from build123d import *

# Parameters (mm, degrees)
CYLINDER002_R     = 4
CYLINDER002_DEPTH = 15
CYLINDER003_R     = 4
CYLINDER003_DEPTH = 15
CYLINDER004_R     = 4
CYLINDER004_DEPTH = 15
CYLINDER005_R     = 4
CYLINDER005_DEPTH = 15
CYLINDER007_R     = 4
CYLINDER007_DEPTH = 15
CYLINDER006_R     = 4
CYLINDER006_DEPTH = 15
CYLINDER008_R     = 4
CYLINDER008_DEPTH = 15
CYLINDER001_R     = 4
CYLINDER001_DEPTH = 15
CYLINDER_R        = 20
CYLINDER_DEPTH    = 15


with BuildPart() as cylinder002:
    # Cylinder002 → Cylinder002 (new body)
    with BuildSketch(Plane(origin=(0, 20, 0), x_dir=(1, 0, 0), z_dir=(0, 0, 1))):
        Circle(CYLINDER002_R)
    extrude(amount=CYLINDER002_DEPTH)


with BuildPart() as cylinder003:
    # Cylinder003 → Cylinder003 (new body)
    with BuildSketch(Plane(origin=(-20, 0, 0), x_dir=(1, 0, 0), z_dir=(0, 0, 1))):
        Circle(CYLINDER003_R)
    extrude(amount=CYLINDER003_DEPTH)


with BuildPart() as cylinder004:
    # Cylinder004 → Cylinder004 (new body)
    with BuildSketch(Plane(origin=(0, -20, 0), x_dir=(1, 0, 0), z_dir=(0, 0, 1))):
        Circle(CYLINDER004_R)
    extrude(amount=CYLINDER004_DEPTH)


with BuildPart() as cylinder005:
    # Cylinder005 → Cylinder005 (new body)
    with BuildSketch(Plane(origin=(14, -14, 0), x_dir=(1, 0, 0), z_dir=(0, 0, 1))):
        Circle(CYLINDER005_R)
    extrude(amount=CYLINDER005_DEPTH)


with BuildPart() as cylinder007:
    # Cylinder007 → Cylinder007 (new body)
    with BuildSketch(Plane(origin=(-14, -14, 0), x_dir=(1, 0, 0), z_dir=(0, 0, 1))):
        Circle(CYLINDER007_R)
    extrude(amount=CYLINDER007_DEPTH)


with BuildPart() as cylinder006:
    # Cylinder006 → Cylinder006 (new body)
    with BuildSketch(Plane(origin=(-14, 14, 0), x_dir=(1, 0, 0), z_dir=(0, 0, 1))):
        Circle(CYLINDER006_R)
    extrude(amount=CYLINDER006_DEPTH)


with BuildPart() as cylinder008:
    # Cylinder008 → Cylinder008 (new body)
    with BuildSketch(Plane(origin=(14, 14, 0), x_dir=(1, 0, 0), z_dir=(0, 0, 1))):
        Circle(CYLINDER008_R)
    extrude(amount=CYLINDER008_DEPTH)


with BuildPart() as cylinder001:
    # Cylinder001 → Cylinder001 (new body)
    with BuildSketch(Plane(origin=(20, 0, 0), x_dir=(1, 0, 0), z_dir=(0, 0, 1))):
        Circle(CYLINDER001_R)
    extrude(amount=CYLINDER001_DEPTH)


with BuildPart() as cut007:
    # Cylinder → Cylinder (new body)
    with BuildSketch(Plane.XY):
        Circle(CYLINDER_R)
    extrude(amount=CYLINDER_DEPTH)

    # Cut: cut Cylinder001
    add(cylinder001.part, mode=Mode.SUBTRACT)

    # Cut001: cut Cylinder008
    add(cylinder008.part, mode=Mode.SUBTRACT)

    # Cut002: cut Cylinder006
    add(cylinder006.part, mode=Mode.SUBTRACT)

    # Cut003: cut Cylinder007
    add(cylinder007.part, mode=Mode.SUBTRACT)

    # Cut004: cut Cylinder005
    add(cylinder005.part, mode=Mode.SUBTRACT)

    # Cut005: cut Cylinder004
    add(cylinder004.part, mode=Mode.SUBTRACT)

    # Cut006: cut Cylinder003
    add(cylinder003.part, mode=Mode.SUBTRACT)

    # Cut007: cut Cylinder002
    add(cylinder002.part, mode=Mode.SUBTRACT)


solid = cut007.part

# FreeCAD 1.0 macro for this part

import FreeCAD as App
import Part
import Sketcher

doc = App.newDocument("Part")
body = doc.addObject("PartDesign::Body", "Body")

sketch1 = doc.addObject("Sketcher::SketchObject", "Sketch")
body.addObject(sketch1)
sketch1.AttachmentSupport = (doc.XY_Plane, [""])
sketch1.MapMode = "FlatFace"
sketch1.addGeometry(Part.Circle(App.Vector(0, 20, 0), App.Vector(0, 0, 1), 4), False)
sketch1.addConstraint([
    Sketcher.Constraint("PointOnObject", 0, 3, -2),
    Sketcher.Constraint("Diameter", 0, 8.0),
    Sketcher.Constraint("DistanceY", -1, 1, 0, 3, 20.0),
])
pad1 = doc.addObject("PartDesign::Pad", "Pad")
body.addObject(pad1)
pad1.Profile = sketch1
pad1.Length = 15
body2 = doc.addObject("PartDesign::Body", "Body001")

sketch2 = doc.addObject("Sketcher::SketchObject", "Sketch001")
body2.addObject(sketch2)
sketch2.AttachmentSupport = (doc.getObject("XY_Plane001"), [""])
sketch2.MapMode = "FlatFace"
sketch2.addGeometry(Part.Circle(App.Vector(-20, 0, 0), App.Vector(0, 0, 1), 4), False)
sketch2.addConstraint([
    Sketcher.Constraint("PointOnObject", 0, 3, -1),
    Sketcher.Constraint("Diameter", 0, 8.0),
    Sketcher.Constraint("DistanceX", 0, 3, -1, 1, 20.0),
])
pad2 = doc.addObject("PartDesign::Pad", "Pad001")
body2.addObject(pad2)
pad2.Profile = sketch2
pad2.Length = 15
body3 = doc.addObject("PartDesign::Body", "Body002")

sketch3 = doc.addObject("Sketcher::SketchObject", "Sketch002")
body3.addObject(sketch3)
sketch3.AttachmentSupport = (doc.getObject("XY_Plane002"), [""])
sketch3.MapMode = "FlatFace"
sketch3.addGeometry(Part.Circle(App.Vector(0, -20, 0), App.Vector(0, 0, 1), 4), False)
sketch3.addConstraint([
    Sketcher.Constraint("PointOnObject", 0, 3, -2),
    Sketcher.Constraint("Diameter", 0, 8.0),
    Sketcher.Constraint("DistanceY", 0, 3, -1, 1, 20.0),
])
pad3 = doc.addObject("PartDesign::Pad", "Pad002")
body3.addObject(pad3)
pad3.Profile = sketch3
pad3.Length = 15
body4 = doc.addObject("PartDesign::Body", "Body003")

sketch4 = doc.addObject("Sketcher::SketchObject", "Sketch003")
body4.addObject(sketch4)
sketch4.AttachmentSupport = (doc.getObject("XY_Plane003"), [""])
sketch4.MapMode = "FlatFace"
sketch4.addGeometry(Part.Circle(App.Vector(14, -14, 0), App.Vector(0, 0, 1), 4), False)
sketch4.addConstraint([
    Sketcher.Constraint("Diameter", 0, 8.0),
    Sketcher.Constraint("DistanceX", -1, 1, 0, 3, 14.0),
    Sketcher.Constraint("DistanceY", 0, 3, -1, 1, 14.0),
])
pad4 = doc.addObject("PartDesign::Pad", "Pad003")
body4.addObject(pad4)
pad4.Profile = sketch4
pad4.Length = 15
body5 = doc.addObject("PartDesign::Body", "Body004")

sketch5 = doc.addObject("Sketcher::SketchObject", "Sketch004")
body5.addObject(sketch5)
sketch5.AttachmentSupport = (doc.getObject("XY_Plane004"), [""])
sketch5.MapMode = "FlatFace"
sketch5.addGeometry(Part.Circle(App.Vector(-14, -14, 0), App.Vector(0, 0, 1), 4), False)
sketch5.addConstraint([
    Sketcher.Constraint("Diameter", 0, 8.0),
    Sketcher.Constraint("DistanceX", 0, 3, -1, 1, 14.0),
    Sketcher.Constraint("DistanceY", 0, 3, -1, 1, 14.0),
])
pad5 = doc.addObject("PartDesign::Pad", "Pad004")
body5.addObject(pad5)
pad5.Profile = sketch5
pad5.Length = 15
body6 = doc.addObject("PartDesign::Body", "Body005")

sketch6 = doc.addObject("Sketcher::SketchObject", "Sketch005")
body6.addObject(sketch6)
sketch6.AttachmentSupport = (doc.getObject("XY_Plane005"), [""])
sketch6.MapMode = "FlatFace"
sketch6.addGeometry(Part.Circle(App.Vector(-14, 14, 0), App.Vector(0, 0, 1), 4), False)
sketch6.addConstraint([
    Sketcher.Constraint("Diameter", 0, 8.0),
    Sketcher.Constraint("DistanceX", 0, 3, -1, 1, 14.0),
    Sketcher.Constraint("DistanceY", -1, 1, 0, 3, 14.0),
])
pad6 = doc.addObject("PartDesign::Pad", "Pad005")
body6.addObject(pad6)
pad6.Profile = sketch6
pad6.Length = 15
body7 = doc.addObject("PartDesign::Body", "Body006")

sketch7 = doc.addObject("Sketcher::SketchObject", "Sketch006")
body7.addObject(sketch7)
sketch7.AttachmentSupport = (doc.getObject("XY_Plane006"), [""])
sketch7.MapMode = "FlatFace"
sketch7.addGeometry(Part.Circle(App.Vector(14, 14, 0), App.Vector(0, 0, 1), 4), False)
sketch7.addConstraint([
    Sketcher.Constraint("Diameter", 0, 8.0),
    Sketcher.Constraint("DistanceX", -1, 1, 0, 3, 14.0),
    Sketcher.Constraint("DistanceY", -1, 1, 0, 3, 14.0),
])
pad7 = doc.addObject("PartDesign::Pad", "Pad006")
body7.addObject(pad7)
pad7.Profile = sketch7
pad7.Length = 15
body8 = doc.addObject("PartDesign::Body", "Body007")

sketch8 = doc.addObject("Sketcher::SketchObject", "Sketch007")
body8.addObject(sketch8)
sketch8.AttachmentSupport = (doc.getObject("XY_Plane007"), [""])
sketch8.MapMode = "FlatFace"
sketch8.addGeometry(Part.Circle(App.Vector(20, 0, 0), App.Vector(0, 0, 1), 4), False)
sketch8.addConstraint([
    Sketcher.Constraint("PointOnObject", 0, 3, -1),
    Sketcher.Constraint("Diameter", 0, 8.0),
    Sketcher.Constraint("DistanceX", -1, 1, 0, 3, 20.0),
])
pad8 = doc.addObject("PartDesign::Pad", "Pad007")
body8.addObject(pad8)
pad8.Profile = sketch8
pad8.Length = 15
body9 = doc.addObject("PartDesign::Body", "Body008")

sketch9 = doc.addObject("Sketcher::SketchObject", "Sketch008")
body9.addObject(sketch9)
sketch9.AttachmentSupport = (doc.getObject("XY_Plane008"), [""])
sketch9.MapMode = "FlatFace"
sketch9.addGeometry(Part.Circle(App.Vector(0, 0, 0), App.Vector(0, 0, 1), 20), False)
sketch9.addConstraint([
    Sketcher.Constraint("Coincident", 0, 3, -1, 1),
    Sketcher.Constraint("Diameter", 0, 40.0),
])
pad9 = doc.addObject("PartDesign::Pad", "Pad008")
body9.addObject(pad9)
pad9.Profile = sketch9
pad9.Length = 15
doc.recompute()

boolean = doc.addObject("PartDesign::Boolean", "Boolean")
body9.addObject(boolean)
boolean.Type = "Cut"
boolean.addObjects([body8])
doc.recompute()

boolean2 = doc.addObject("PartDesign::Boolean", "Boolean001")
body9.addObject(boolean2)
boolean2.Type = "Cut"
boolean2.addObjects([body7])
doc.recompute()

boolean3 = doc.addObject("PartDesign::Boolean", "Boolean002")
body9.addObject(boolean3)
boolean3.Type = "Cut"
boolean3.addObjects([body6])
doc.recompute()

boolean4 = doc.addObject("PartDesign::Boolean", "Boolean003")
body9.addObject(boolean4)
boolean4.Type = "Cut"
boolean4.addObjects([body5])
doc.recompute()

boolean5 = doc.addObject("PartDesign::Boolean", "Boolean004")
body9.addObject(boolean5)
boolean5.Type = "Cut"
boolean5.addObjects([body4])
doc.recompute()

boolean6 = doc.addObject("PartDesign::Boolean", "Boolean005")
body9.addObject(boolean6)
boolean6.Type = "Cut"
boolean6.addObjects([body3])
doc.recompute()

boolean7 = doc.addObject("PartDesign::Boolean", "Boolean006")
body9.addObject(boolean7)
boolean7.Type = "Cut"
boolean7.addObjects([body2])
doc.recompute()

boolean8 = doc.addObject("PartDesign::Boolean", "Boolean007")
body9.addObject(boolean8)
boolean8.Type = "Cut"
boolean8.addObjects([body])

doc.recompute()
